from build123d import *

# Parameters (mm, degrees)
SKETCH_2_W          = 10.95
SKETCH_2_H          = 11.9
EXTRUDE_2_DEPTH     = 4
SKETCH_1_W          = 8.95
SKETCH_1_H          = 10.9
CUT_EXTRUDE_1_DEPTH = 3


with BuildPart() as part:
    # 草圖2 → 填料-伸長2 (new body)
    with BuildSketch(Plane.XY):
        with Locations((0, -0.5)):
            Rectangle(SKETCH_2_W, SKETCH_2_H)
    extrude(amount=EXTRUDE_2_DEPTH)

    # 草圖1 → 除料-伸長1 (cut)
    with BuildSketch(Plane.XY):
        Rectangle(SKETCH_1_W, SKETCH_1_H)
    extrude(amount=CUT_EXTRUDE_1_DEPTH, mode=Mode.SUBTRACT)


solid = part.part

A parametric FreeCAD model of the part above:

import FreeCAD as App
import Part
import Sketcher

V = App.Vector
Q = App.Units.Quantity

doc = App.newDocument("Part")
body = doc.addObject("PartDesign::Body", "Body")

# Sketch on XY plane
sketch1 = body.newObject("Sketcher::SketchObject", "Sketch")
sketch1.AttachmentSupport = (doc.getObject("XY_Plane"), [""])
sketch1.MapMode = "FlatFace"
sketch1.addGeometry([
    Part.LineSegment(V(-5, 5, 0), V(-5, -6, 0)),
    Part.LineSegment(V(-5, -6, 0), V(5, -6, 0)),
    Part.LineSegment(V(5, -6, 0), V(5, 5, 0)),
    Part.LineSegment(V(5, 5, 0), V(-5, 5, 0)),
], False)
sketch1.addConstraint([
    Sketcher.Constraint("Coincident", 0, 2, 1, 1),
    Sketcher.Constraint("Coincident", 1, 2, 2, 1),
    Sketcher.Constraint("Coincident", 2, 2, 3, 1),
    Sketcher.Constraint("Coincident", 3, 2, 0, 1),
    Sketcher.Constraint("Vertical", 0),
    Sketcher.Constraint("Horizontal", 1),
    Sketcher.Constraint("Vertical", 2),
    Sketcher.Constraint("Horizontal", 3),
    Sketcher.Constraint("DistanceY", 0, 2, 0, 1, Q("11.9 mm")),
    Sketcher.Constraint("DistanceX", 1, 1, 1, 2, Q("10.95 mm")),
    Sketcher.Constraint("DistanceY", 0, 2, -1, 1, Q("6.45 mm")),
    Sketcher.Constraint("DistanceX", 0, 2, -1, 1, Q("5.475 mm")),
])
pad1 = body.newObject("PartDesign::Pad", "Pad")
pad1.Profile = sketch1
pad1.Length = 4

# Sketch on XY plane
sketch2 = body.newObject("Sketcher::SketchObject", "Sketch001")
sketch2.AttachmentSupport = (doc.getObject("XY_Plane"), [""])
sketch2.MapMode = "FlatFace"
sketch2.addGeometry([
    Part.LineSegment(V(-4, 5, 0), V(-4, -5, 0)),
    Part.LineSegment(V(-4, -5, 0), V(4, -5, 0)),
    Part.LineSegment(V(4, -5, 0), V(4, 5, 0)),
    Part.LineSegment(V(4, 5, 0), V(-4, 5, 0)),
], False)
sketch2.addConstraint([
    Sketcher.Constraint("Coincident", 0, 2, 1, 1),
    Sketcher.Constraint("Coincident", 1, 2, 2, 1),
    Sketcher.Constraint("Coincident", 2, 2, 3, 1),
    Sketcher.Constraint("Coincident", 3, 2, 0, 1),
    Sketcher.Constraint("Vertical", 0),
    Sketcher.Constraint("Horizontal", 1),
    Sketcher.Constraint("Vertical", 2),
    Sketcher.Constraint("Horizontal", 3),
    Sketcher.Constraint("Symmetric", 0, 2, 2, 2, -1, 1),
    Sketcher.Constraint("DistanceY", 0, 2, 0, 1, Q("10.9 mm")),
    Sketcher.Constraint("DistanceX", 1, 1, 1, 2, Q("8.95 mm")),
])
pocket1 = body.newObject("PartDesign::Pocket", "Pocket")
pocket1.Profile = sketch2
pocket1.Length = 3
pocket1.Reversed = True

doc.recompute()
